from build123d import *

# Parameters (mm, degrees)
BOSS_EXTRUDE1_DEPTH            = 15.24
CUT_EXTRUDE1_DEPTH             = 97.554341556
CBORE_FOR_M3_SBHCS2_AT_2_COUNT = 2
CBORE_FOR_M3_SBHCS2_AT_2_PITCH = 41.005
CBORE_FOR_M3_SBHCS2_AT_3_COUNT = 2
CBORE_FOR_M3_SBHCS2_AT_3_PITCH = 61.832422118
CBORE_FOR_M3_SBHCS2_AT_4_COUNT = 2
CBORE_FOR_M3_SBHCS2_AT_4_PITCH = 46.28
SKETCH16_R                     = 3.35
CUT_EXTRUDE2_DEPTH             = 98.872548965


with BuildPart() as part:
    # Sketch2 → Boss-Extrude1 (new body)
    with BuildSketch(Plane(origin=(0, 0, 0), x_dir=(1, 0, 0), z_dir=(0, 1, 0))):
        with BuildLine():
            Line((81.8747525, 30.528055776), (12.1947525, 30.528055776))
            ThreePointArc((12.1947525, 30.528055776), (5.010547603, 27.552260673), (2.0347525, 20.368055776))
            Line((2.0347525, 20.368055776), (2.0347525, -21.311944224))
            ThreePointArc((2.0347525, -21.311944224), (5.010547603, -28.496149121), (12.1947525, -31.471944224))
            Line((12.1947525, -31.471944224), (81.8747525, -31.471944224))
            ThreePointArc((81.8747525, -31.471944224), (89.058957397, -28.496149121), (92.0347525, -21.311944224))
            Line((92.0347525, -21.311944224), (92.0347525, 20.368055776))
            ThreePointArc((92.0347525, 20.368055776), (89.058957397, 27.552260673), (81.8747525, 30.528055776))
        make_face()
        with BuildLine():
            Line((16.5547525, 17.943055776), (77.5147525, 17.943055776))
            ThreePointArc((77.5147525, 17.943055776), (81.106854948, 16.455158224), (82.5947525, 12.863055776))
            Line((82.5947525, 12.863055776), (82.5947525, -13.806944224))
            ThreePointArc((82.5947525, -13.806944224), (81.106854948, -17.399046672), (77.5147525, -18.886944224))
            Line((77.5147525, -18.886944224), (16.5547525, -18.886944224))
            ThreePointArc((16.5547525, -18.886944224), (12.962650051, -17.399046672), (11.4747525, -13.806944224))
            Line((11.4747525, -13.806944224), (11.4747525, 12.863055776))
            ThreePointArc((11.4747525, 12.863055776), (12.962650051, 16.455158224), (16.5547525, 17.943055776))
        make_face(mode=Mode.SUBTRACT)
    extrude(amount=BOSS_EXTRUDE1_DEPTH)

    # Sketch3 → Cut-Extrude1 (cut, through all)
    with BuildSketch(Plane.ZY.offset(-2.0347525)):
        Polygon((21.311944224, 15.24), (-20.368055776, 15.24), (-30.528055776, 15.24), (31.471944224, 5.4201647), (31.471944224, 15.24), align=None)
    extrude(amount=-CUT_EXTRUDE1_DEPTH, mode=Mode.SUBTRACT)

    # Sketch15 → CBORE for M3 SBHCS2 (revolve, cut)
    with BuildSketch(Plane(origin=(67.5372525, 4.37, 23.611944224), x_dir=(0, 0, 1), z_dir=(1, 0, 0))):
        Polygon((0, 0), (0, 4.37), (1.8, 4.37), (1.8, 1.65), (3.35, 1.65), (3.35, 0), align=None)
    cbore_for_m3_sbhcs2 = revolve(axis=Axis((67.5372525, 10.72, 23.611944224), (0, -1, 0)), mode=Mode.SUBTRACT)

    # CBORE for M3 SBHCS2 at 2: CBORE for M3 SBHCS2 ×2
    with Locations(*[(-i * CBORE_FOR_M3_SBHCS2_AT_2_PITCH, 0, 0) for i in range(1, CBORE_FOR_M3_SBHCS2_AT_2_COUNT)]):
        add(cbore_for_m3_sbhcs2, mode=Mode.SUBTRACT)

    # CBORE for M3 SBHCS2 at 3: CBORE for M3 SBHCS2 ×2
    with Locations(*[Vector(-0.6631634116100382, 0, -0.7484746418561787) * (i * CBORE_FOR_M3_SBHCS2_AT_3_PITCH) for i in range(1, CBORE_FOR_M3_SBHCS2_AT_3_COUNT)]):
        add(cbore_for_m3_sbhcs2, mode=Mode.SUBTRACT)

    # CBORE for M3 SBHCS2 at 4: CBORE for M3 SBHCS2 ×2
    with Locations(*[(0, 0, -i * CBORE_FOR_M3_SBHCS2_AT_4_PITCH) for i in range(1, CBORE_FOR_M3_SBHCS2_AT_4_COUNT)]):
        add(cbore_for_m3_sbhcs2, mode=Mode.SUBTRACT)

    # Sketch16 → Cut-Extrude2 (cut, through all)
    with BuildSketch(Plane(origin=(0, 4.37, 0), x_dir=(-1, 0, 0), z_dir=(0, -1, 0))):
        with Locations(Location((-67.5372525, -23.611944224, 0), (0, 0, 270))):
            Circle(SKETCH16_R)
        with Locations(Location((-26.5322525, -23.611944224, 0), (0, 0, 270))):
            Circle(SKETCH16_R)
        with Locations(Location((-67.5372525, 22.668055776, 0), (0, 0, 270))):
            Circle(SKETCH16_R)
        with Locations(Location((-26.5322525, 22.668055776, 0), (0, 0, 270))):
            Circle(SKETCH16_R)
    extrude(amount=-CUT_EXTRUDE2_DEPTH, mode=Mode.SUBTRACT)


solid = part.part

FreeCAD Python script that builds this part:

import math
import FreeCAD as App
import Part
import Sketcher

V = App.Vector
Q = App.Units.Quantity


def add_polygon(sketch, points):
    """Adds a closed chain of lines whose ends are joined by coincident constraints."""
    first, n = sketch.GeometryCount, len(points)
    for a, b in zip(points, points[1:] + points[:1]):
        sketch.addGeometry(Part.LineSegment(App.Vector(*a, 0), App.Vector(*b, 0)), False)
    for i in range(n):
        sketch.addConstraint(Sketcher.Constraint("Coincident", first + i, 2, first + (i + 1) % n, 1))

doc = App.newDocument("Part")
params = doc.addObject("Spreadsheet::Sheet", "Params")
for row, (alias, value) in enumerate([
    ("sketch1_radius", "0.4 in"),
    ("sketch1_radius2", "0.2 in"),
    ("sketch1_width", "2.4 in"),
    ("sketch1_height", "1.05 in"),
    ("pad1_length", "0.6 in"),
    ("groove_angle", "360 deg"),
    ("linearpattern_pitch", "41.005 mm"),
    ("linearpattern2_pitch", "61.832422 mm"),
    ("linearpattern3_pitch", "46.28 mm"),
], start=1):
    params.set(f"A{row}", alias)
    params.set(f"B{row}", "=" + value)
    params.setAlias(f"B{row}", alias)

body = doc.addObject("PartDesign::Body", "Body")

# Sketch on XZ plane
sketch1 = body.newObject("Sketcher::SketchObject", "Sketch")
sketch1.AttachmentSupport = (doc.getObject("XZ_Plane"), [""])
sketch1.MapMode = "FlatFace"
sketch1.addGeometry([
    Part.LineSegment(V(81.874752, -30.528056, 0), V(12.194752, -30.528056, 0)),  # 0
    Part.ArcOfCircle(Part.Circle(V(12.194752, -20.368056, 0), V(0, 0, 1), 10.16), math.radians(180), math.radians(270)),  # 1
    Part.LineSegment(V(2.034753, -20.368056, 0), V(2.034753, 21.311944, 0)),  # 2
    Part.ArcOfCircle(Part.Circle(V(12.194752, 21.311944, 0), V(0, 0, 1), 10.16), math.radians(90), math.radians(180)),  # 3
    Part.LineSegment(V(12.194752, 31.471944, 0), V(81.874752, 31.471944, 0)),  # 4
    Part.ArcOfCircle(Part.Circle(V(81.874752, 21.311944, 0), V(0, 0, 1), 10.16), math.radians(0), math.radians(90)),  # 5
    Part.LineSegment(V(92.034752, 21.311944, 0), V(92.034752, -20.368056, 0)),  # 6
    Part.ArcOfCircle(Part.Circle(V(81.874752, -20.368056, 0), V(0, 0, 1), 10.16), math.radians(-90), math.radians(0)),  # 7
    Part.ArcOfCircle(Part.Circle(V(16.554752, -12.863056, 0), V(0, 0, 1), 5.08), math.radians(180), math.radians(270)),  # 8
    Part.LineSegment(V(16.554752, -17.943056, 0), V(77.514753, -17.943056, 0)),  # 9
    Part.ArcOfCircle(Part.Circle(V(77.514752, -12.863056, 0), V(0, 0, 1), 5.08), math.radians(-90), math.radians(0)),  # 10
    Part.LineSegment(V(82.594752, -12.863056, 0), V(82.594752, 13.806944, 0)),  # 11
    Part.ArcOfCircle(Part.Circle(V(77.514752, 13.806944, 0), V(0, 0, 1), 5.08), math.radians(0), math.radians(90)),  # 12
    Part.LineSegment(V(77.514753, 18.886944, 0), V(16.554752, 18.886944, 0)),  # 13
    Part.ArcOfCircle(Part.Circle(V(16.554752, 13.806944, 0), V(0, 0, 1), 5.08), math.radians(90), math.radians(180)),  # 14
    Part.LineSegment(V(11.474752, 13.806944, 0), V(11.474752, -12.863056, 0)),  # 15
], False)
sketch1.addConstraint([
    Sketcher.Constraint("Tangent", 0, 2, 1, 2),
    Sketcher.Constraint("Tangent", 1, 1, 2, 1),
    Sketcher.Constraint("Tangent", 2, 2, 3, 2),
    Sketcher.Constraint("Tangent", 3, 1, 4, 1),
    Sketcher.Constraint("Tangent", 4, 2, 5, 2),
    Sketcher.Constraint("Tangent", 5, 1, 6, 1),
    Sketcher.Constraint("Tangent", 6, 2, 7, 2),
    Sketcher.Constraint("Tangent", 7, 1, 0, 1),
    Sketcher.Constraint("Tangent", 8, 2, 9, 1),
    Sketcher.Constraint("Tangent", 9, 2, 10, 1),
    Sketcher.Constraint("Tangent", 10, 2, 11, 1),
    Sketcher.Constraint("Tangent", 11, 2, 12, 1),
    Sketcher.Constraint("Tangent", 12, 2, 13, 1),
    Sketcher.Constraint("Tangent", 13, 2, 14, 1),
    Sketcher.Constraint("Tangent", 14, 2, 15, 1),
    Sketcher.Constraint("Tangent", 15, 2, 8, 1),
    Sketcher.Constraint("Horizontal", 0),
    Sketcher.Constraint("Vertical", 2),
    Sketcher.Constraint("Horizontal", 4),
    Sketcher.Constraint("Vertical", 6),
    Sketcher.Constraint("Horizontal", 9),
    Sketcher.Constraint("Vertical", 11),
    Sketcher.Constraint("Horizontal", 13),
    Sketcher.Constraint("Vertical", 15),
    Sketcher.Constraint("Equal", 1, 3),
    Sketcher.Constraint("Equal", 3, 5),
    Sketcher.Constraint("Equal", 5, 7),
    Sketcher.Constraint("Equal", 8, 10),
    Sketcher.Constraint("Equal", 10, 12),
    Sketcher.Constraint("Equal", 12, 14),
    Sketcher.Constraint("Radius", 1, Q("0.4 in")),
    Sketcher.Constraint("Radius", 8, Q("0.2 in")),
    Sketcher.Constraint("DistanceX", 9, 1, 9, 2, Q("2.4 in")),
    Sketcher.Constraint("DistanceY", 11, 1, 11, 2, Q("1.05 in")),
    Sketcher.Constraint("DistanceX", 0, 2, 0, 1, Q("69.68 mm")),
    Sketcher.Constraint("DistanceY", 2, 1, 2, 2, Q("41.68 mm")),
    Sketcher.Constraint("DistanceX", 1, 3, 8, 3, Q("4.36 mm")),
    Sketcher.Constraint("DistanceY", 1, 3, 8, 3, Q("7.505 mm")),
    Sketcher.Constraint("DistanceX", -1, 1, 1, 3, Q("12.194752 mm")),
    Sketcher.Constraint("DistanceY", 1, 3, -1, 1, Q("20.368056 mm")),
])
sketch1.setExpression("Constraints[30]", "Params.sketch1_radius")
sketch1.setExpression("Constraints[31]", "Params.sketch1_radius2")
sketch1.setExpression("Constraints[32]", "Params.sketch1_width")
sketch1.setExpression("Constraints[33]", "Params.sketch1_height")
pad1 = body.newObject("PartDesign::Pad", "Pad")
pad1.Profile = sketch1
pad1.setExpression("Length", "Params.pad1_length")
pad1.Reversed = True

# Sketch on YZ plane
sketch2 = body.newObject("Sketcher::SketchObject", "Sketch001")
sketch2.AttachmentSupport = (doc.getObject("YZ_Plane"), [""])
sketch2.MapMode = "FlatFace"
sketch2.AttachmentOffset = App.Placement(V(0, 0, 2.034753), App.Rotation())
add_polygon(sketch2, [(15.24, -30.528056), (5.420165, 31.471944), (15.24, 31.471944)])  # lines 0-2
sketch2.addConstraint([
    Sketcher.Constraint("Horizontal", 1),
    Sketcher.Constraint("Vertical", 2),
    Sketcher.Constraint("Angle", 0, Q("99 deg")),
    Sketcher.Constraint("DistanceX", -1, 1, 1, 2, Q("0.6 in")),
    Sketcher.Constraint("DistanceY", 2, 2, 2, 1, Q("62 mm")),
    Sketcher.Constraint("DistanceY", -1, 1, 0, 2, Q("31.471944 mm")),
])
pocket1 = body.newObject("PartDesign::Pocket", "Pocket")
pocket1.Profile = sketch2
pocket1.Type = "ThroughAll"
pocket1.Reversed = True

# Sketch on YZ plane
sketch3 = body.newObject("Sketcher::SketchObject", "Sketch002")
sketch3.AttachmentSupport = (doc.getObject("YZ_Plane"), [""])
sketch3.MapMode = "FlatFace"
sketch3.AttachmentOffset = App.Placement(V(0, 0, 67.537252), App.Rotation())
add_polygon(sketch3, [(0, 23.611944), (4.37, 23.611944), (4.37, 26.961944), (2.72, 26.961944), (2.72, 25.411944), (0, 25.411944)])  # lines 0-5
sketch3.addGeometry(Part.LineSegment(V(4.37, 23.611944, 0), V(0, 23.611944, 0)), True)  # axis
sketch3.addConstraint([
    Sketcher.Constraint("Horizontal", 0),
    Sketcher.Constraint("Vertical", 1),
    Sketcher.Constraint("Horizontal", 2),
    Sketcher.Constraint("Vertical", 3),
    Sketcher.Constraint("Horizontal", 4),
    Sketcher.Constraint("Vertical", 5),
    Sketcher.Constraint("Horizontal", 6),
    Sketcher.Constraint("Coincident", 6, 1, 0, 2),
    Sketcher.Constraint("PointOnObject", 4, 2, -2),
    Sketcher.Constraint("PointOnObject", 6, 2, -2),
    Sketcher.Constraint("DistanceX", 0, 1, 0, 2, Q("4.37 mm")),
    Sketcher.Constraint("DistanceX", 2, 2, 2, 1, Q("1.65 mm")),
    Sketcher.Constraint("DistanceY", 1, 1, 1, 2, Q("3.35 mm")),
    Sketcher.Constraint("DistanceY", 3, 2, 3, 1, Q("1.55 mm")),
    Sketcher.Constraint("DistanceY", -1, 1, 0, 2, Q("23.611944 mm")),
])
groove = body.newObject("PartDesign::Groove", "Groove")
groove.Profile = sketch3
groove.ReferenceAxis = (sketch3, ["Axis0"])
groove.setExpression("Angle", "Params.groove_angle")
doc.recompute()

linearpattern = body.newObject("PartDesign::LinearPattern", "LinearPattern")
linearpattern.Originals = [groove]
linearpattern.Direction = (doc.getObject("X_Axis"), [""])
linearpattern.Mode = "offset"
linearpattern.setExpression("Offset", "Params.linearpattern_pitch")
linearpattern.Occurrences = 2
linearpattern.Reversed = True
body.Tip = linearpattern
doc.recompute()

datumline = body.newObject("PartDesign::Line", "DatumLine")
datumline.Placement = App.Placement(V(0, 0, 0), App.Rotation(V(0, 0, 1), V(-0.663163412, 0, -0.748474642)))
linearpattern2 = body.newObject("PartDesign::LinearPattern", "LinearPattern001")
linearpattern2.Originals = [groove]
linearpattern2.Direction = (datumline, [""])
linearpattern2.Mode = "offset"
linearpattern2.setExpression("Offset", "Params.linearpattern2_pitch")
linearpattern2.Occurrences = 2
body.Tip = linearpattern2
doc.recompute()

linearpattern3 = body.newObject("PartDesign::LinearPattern", "LinearPattern002")
linearpattern3.Originals = [groove]
linearpattern3.Direction = (doc.getObject("Z_Axis"), [""])
linearpattern3.Mode = "offset"
linearpattern3.setExpression("Offset", "Params.linearpattern3_pitch")
linearpattern3.Occurrences = 2
linearpattern3.Reversed = True
body.Tip = linearpattern3

# Sketch on XZ plane
sketch4 = body.newObject("Sketcher::SketchObject", "Sketch003")
sketch4.AttachmentSupport = (doc.getObject("XZ_Plane"), [""])
sketch4.MapMode = "FlatFace"
sketch4.AttachmentOffset = App.Placement(V(0, 0, -4.37), App.Rotation())
sketch4.addGeometry([
    Part.Circle(V(67.537252, 23.611944, 0), V(0, 0, 1), 3.35),
    Part.Circle(V(26.532252, 23.611944, 0), V(0, 0, 1), 3.35),
    Part.Circle(V(67.537252, -22.668056, 0), V(0, 0, 1), 3.35),
    Part.Circle(V(26.532252, -22.668056, 0), V(0, 0, 1), 3.35),
], False)
sketch4.addConstraint([
    Sketcher.Constraint("Equal", 0, 1),
    Sketcher.Constraint("Equal", 1, 2),
    Sketcher.Constraint("Equal", 2, 3),
    Sketcher.Constraint("Horizontal", 0, 3, 1, 3),
    Sketcher.Constraint("Horizontal", 2, 3, 3, 3),
    Sketcher.Constraint("Vertical", 0, 3, 2, 3),
    Sketcher.Constraint("Vertical", 1, 3, 3, 3),
    Sketcher.Constraint("Diameter", 0, Q("6.7 mm")),
    Sketcher.Constraint("DistanceX", 1, 3, 0, 3, Q("41.005 mm")),
    Sketcher.Constraint("DistanceY", 2, 3, 0, 3, Q("46.28 mm")),
    Sketcher.Constraint("DistanceX", -1, 1, 0, 3, Q("67.537252 mm")),
    Sketcher.Constraint("DistanceY", -1, 1, 0, 3, Q("23.611944 mm")),
])
pocket2 = body.newObject("PartDesign::Pocket", "Pocket001")
pocket2.Profile = sketch4
pocket2.Type = "ThroughAll"

doc.recompute()
